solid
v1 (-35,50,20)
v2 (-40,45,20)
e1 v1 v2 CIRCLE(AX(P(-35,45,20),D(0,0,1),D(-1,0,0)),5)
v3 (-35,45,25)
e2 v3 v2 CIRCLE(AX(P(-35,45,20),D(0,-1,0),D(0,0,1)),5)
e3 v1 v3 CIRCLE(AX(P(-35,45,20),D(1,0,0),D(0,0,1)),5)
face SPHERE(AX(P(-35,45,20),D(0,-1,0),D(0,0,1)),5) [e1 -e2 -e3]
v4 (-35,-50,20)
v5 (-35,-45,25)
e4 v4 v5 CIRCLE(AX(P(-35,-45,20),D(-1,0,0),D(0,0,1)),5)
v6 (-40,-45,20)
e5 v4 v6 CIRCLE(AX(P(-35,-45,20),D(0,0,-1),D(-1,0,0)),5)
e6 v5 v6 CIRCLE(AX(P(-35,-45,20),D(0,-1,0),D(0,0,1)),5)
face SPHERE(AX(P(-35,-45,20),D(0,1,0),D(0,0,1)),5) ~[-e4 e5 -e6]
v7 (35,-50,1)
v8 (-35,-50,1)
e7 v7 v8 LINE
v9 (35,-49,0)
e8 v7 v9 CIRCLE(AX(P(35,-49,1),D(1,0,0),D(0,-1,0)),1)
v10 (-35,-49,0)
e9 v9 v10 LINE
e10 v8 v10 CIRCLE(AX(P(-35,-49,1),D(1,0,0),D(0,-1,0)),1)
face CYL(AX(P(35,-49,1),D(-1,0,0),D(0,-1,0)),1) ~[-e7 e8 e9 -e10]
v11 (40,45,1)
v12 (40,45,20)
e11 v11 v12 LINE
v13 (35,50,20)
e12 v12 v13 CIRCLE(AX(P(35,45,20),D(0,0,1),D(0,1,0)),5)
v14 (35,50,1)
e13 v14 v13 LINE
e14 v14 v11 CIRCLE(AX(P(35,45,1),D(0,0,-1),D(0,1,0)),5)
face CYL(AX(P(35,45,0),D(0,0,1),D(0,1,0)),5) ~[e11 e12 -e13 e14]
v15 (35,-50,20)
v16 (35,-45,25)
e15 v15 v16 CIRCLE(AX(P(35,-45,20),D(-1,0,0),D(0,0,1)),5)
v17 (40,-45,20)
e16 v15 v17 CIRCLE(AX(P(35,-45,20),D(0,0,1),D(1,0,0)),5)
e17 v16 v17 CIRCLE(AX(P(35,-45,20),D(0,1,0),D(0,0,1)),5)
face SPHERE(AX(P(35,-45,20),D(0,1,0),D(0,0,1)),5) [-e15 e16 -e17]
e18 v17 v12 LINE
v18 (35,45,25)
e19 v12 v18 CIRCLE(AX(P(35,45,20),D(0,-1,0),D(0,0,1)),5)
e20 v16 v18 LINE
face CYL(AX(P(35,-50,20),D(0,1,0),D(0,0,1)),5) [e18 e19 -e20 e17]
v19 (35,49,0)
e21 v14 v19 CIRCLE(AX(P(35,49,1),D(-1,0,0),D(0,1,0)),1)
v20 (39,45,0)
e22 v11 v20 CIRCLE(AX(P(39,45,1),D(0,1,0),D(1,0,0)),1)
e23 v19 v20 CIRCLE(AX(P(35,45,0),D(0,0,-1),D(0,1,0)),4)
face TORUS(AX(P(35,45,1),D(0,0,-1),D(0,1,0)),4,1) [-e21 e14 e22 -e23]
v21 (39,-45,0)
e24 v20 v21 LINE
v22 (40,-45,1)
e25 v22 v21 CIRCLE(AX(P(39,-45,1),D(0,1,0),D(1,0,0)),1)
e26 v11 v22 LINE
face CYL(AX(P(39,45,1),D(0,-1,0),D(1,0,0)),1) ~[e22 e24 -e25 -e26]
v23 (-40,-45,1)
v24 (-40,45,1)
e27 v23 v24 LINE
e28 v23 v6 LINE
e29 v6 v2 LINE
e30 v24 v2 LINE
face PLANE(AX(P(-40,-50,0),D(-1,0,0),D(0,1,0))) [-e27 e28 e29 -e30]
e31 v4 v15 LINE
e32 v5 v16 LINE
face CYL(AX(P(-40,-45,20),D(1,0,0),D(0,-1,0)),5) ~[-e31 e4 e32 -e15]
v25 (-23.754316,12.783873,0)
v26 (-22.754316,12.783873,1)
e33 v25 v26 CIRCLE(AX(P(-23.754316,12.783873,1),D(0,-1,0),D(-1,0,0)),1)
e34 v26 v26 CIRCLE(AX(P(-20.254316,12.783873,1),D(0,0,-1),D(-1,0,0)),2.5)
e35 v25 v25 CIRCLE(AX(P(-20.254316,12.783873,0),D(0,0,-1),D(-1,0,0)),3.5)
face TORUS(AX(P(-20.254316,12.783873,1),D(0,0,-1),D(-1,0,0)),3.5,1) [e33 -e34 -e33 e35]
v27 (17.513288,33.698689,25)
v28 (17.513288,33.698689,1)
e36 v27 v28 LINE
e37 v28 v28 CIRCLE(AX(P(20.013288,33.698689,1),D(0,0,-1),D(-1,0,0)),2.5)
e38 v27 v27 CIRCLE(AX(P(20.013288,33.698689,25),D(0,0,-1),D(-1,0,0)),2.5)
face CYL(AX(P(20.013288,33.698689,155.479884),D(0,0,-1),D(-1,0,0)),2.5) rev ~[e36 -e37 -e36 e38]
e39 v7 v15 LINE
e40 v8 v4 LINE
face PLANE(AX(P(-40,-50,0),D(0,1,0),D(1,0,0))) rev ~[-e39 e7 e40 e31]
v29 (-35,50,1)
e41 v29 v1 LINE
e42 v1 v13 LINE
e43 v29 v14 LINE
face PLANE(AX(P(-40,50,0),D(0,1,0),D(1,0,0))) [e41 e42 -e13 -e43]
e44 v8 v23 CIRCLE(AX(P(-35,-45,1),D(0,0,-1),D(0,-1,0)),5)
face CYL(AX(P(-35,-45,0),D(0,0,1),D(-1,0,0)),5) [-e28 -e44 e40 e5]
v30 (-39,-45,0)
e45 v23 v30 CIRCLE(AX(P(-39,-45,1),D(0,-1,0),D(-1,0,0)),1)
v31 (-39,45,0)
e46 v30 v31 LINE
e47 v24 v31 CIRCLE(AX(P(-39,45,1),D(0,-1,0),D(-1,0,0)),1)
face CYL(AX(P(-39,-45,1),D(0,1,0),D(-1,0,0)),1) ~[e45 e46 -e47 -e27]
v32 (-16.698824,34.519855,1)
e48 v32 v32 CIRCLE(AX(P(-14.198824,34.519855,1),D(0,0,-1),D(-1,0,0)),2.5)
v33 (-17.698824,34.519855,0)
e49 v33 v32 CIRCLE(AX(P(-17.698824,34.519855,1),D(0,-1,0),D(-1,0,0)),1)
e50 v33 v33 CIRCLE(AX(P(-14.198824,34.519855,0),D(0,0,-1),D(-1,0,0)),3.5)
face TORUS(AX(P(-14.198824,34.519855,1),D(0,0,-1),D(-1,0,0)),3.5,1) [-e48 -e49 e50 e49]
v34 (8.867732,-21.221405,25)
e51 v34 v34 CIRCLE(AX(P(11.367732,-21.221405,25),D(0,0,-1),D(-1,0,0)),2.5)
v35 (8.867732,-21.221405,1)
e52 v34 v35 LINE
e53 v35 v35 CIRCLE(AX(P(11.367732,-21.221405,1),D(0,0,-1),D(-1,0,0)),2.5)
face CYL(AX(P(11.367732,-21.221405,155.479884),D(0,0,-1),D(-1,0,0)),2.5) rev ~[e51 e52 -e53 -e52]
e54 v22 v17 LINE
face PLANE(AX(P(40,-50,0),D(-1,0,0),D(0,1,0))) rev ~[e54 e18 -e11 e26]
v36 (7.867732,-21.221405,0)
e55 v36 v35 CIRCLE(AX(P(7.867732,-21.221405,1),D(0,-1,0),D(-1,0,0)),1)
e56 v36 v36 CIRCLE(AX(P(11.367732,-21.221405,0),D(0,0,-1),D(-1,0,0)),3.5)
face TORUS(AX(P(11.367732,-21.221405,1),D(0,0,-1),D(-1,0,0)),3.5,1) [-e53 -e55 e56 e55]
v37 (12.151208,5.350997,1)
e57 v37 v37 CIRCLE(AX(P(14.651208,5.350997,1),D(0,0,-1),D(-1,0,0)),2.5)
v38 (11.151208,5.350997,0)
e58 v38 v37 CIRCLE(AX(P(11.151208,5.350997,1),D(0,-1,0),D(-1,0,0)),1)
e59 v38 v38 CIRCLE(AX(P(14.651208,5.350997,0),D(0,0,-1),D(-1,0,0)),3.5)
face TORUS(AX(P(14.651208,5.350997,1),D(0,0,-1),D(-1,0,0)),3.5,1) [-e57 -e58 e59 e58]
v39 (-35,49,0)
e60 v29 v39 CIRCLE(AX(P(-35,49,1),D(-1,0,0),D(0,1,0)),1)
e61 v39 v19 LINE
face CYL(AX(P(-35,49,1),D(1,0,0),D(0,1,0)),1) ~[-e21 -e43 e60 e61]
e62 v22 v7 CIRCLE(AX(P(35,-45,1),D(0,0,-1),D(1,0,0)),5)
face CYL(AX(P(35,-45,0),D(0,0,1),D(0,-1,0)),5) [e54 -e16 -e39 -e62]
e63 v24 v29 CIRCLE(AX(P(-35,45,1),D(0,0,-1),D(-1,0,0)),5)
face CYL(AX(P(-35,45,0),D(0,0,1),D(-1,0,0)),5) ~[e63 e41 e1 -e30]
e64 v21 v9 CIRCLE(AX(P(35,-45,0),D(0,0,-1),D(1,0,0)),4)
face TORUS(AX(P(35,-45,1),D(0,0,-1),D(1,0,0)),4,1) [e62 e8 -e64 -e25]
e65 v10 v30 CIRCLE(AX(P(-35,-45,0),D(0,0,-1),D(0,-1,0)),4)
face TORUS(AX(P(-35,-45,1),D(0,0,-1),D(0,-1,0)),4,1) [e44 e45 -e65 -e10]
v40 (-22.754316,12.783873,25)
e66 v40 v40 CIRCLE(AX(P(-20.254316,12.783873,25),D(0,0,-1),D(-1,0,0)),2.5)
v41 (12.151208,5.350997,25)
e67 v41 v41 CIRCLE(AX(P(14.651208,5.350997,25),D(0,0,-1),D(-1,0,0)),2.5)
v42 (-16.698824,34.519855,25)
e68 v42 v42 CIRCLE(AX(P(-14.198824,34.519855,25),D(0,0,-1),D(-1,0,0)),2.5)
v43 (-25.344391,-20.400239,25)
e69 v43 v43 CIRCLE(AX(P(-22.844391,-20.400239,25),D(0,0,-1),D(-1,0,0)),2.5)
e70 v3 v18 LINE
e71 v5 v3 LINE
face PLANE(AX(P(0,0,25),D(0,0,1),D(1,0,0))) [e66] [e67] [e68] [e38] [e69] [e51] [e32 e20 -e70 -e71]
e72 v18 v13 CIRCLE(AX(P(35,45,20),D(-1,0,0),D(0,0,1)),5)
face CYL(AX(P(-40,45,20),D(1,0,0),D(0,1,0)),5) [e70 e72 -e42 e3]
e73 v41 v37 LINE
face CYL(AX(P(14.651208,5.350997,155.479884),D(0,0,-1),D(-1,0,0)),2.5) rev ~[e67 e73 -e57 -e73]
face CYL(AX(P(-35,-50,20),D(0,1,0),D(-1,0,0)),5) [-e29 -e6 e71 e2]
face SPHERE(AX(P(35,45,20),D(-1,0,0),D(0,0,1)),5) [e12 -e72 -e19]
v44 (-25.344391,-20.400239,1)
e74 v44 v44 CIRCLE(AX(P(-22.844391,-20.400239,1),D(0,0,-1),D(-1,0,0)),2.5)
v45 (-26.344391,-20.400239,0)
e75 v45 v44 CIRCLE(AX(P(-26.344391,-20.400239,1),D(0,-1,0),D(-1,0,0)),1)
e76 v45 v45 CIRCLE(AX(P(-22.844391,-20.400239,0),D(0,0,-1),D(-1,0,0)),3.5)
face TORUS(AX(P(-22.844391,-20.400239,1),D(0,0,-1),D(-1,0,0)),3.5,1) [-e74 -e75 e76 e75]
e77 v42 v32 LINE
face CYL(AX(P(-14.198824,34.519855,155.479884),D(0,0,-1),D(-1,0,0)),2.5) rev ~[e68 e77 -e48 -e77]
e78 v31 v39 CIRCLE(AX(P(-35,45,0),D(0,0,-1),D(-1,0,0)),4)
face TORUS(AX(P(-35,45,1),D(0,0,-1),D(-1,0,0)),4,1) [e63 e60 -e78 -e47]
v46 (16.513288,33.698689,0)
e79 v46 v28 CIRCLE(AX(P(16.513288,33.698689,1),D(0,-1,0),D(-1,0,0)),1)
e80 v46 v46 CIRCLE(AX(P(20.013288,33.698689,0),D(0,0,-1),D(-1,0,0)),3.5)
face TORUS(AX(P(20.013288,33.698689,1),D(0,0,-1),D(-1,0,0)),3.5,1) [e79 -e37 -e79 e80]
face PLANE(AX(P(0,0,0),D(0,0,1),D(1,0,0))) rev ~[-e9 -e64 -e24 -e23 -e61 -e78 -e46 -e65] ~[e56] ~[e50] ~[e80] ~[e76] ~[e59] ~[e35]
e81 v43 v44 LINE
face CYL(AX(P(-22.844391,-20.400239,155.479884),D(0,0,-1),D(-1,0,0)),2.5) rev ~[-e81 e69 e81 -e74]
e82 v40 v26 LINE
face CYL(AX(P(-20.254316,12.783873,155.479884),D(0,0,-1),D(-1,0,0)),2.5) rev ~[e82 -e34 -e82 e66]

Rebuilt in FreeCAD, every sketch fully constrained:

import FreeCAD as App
import Part
import Sketcher

V = App.Vector


def edges_at(feature, points):
    """Names of the edges that pass closest to the given points."""
    edges = feature.Shape.Edges
    near = lambda p: min(range(len(edges)), key=lambda i: edges[i].distToShape(Part.Vertex(*p))[0])
    return sorted({f"Edge{near(p) + 1}" for p in points})


def add_polygon(sketch, points):
    """Adds a closed chain of lines whose ends are joined by coincident constraints."""
    first, n = sketch.GeometryCount, len(points)
    for a, b in zip(points, points[1:] + points[:1]):
        sketch.addGeometry(Part.LineSegment(App.Vector(*a, 0), App.Vector(*b, 0)), False)
    for i in range(n):
        sketch.addConstraint(Sketcher.Constraint("Coincident", first + i, 2, first + (i + 1) % n, 1))

doc = App.newDocument("Part")
params = doc.addObject("Spreadsheet::Sheet", "Params")
for row, (alias, value) in enumerate([
    ("sketch1_width", "80 mm"),
    ("sketch1_height", "100 mm"),
    ("pad1_length", "25 mm"),
    ("sketch2_diameter", "5 mm"),
    ("hole_diameter", "5 mm"),
    ("fillet_radius", "5 mm"),
    ("fillet2_radius", "1 mm"),
], start=1):
    params.set(f"A{row}", alias)
    params.set(f"B{row}", "=" + value)
    params.setAlias(f"B{row}", alias)

body = doc.addObject("PartDesign::Body", "Body")

# Sketch on XY plane
sketch1 = body.newObject("Sketcher::SketchObject", "Sketch")
sketch1.AttachmentSupport = (doc.getObject("XY_Plane"), [""])
sketch1.MapMode = "FlatFace"
add_polygon(sketch1, [(-40, 50), (-40, -50), (40, -50), (40, 50)])  # lines 0-3
sketch1.addConstraint([
    Sketcher.Constraint("Vertical", 0),
    Sketcher.Constraint("Horizontal", 1),
    Sketcher.Constraint("Vertical", 2),
    Sketcher.Constraint("Horizontal", 3),
    Sketcher.Constraint("Symmetric", 0, 2, 2, 2, -1, 1),
    Sketcher.Constraint("DistanceX", 1, 1, 1, 2, 80.0),
    Sketcher.Constraint("DistanceY", 0, 2, 0, 1, 100.0),
])
sketch1.setExpression("Constraints[9]", "Params.sketch1_width")
sketch1.setExpression("Constraints[10]", "Params.sketch1_height")
pad1 = body.newObject("PartDesign::Pad", "Pad")
pad1.Profile = sketch1
pad1.setExpression("Length", "Params.pad1_length")

# Sketch on XY plane
sketch2 = body.newObject("Sketcher::SketchObject", "Sketch001")
sketch2.AttachmentSupport = (doc.getObject("XY_Plane"), [""])
sketch2.MapMode = "FlatFace"
sketch2.AttachmentOffset = App.Placement(V(0, 0, 25), App.Rotation())
sketch2.addGeometry([
    Part.Circle(V(20, 33.7, 0), V(0, 0, 1), 2.5),  # 0
    Part.Circle(V(-14.2, 34.5, 0), V(0, 0, 1), 2.5),  # 1
    Part.Circle(V(-20.3, 12.8, 0), V(0, 0, 1), 2.5),  # 2
    Part.Circle(V(14.7, 5.4, 0), V(0, 0, 1), 2.5),  # 3
    Part.Circle(V(11.4, -21.2, 0), V(0, 0, 1), 2.5),  # 4
    Part.Circle(V(-22.8, -20.4, 0), V(0, 0, 1), 2.5),  # 5
], False)
sketch2.addConstraint([
    Sketcher.Constraint("Equal", 0, 1),
    Sketcher.Constraint("Equal", 1, 2),
    Sketcher.Constraint("Equal", 2, 3),
    Sketcher.Constraint("Equal", 3, 4),
    Sketcher.Constraint("Equal", 4, 5),
    Sketcher.Constraint("Diameter", 0, 5.0),
    Sketcher.Constraint("DistanceX", 5, 3, 3, 3, 37.495599),
    Sketcher.Constraint("DistanceY", -1, 1, 0, 3, 33.698689),
    Sketcher.Constraint("DistanceX", 5, 3, -1, 1, 22.844391),
    Sketcher.Constraint("DistanceY", 5, 3, -1, 1, 20.400239),
    Sketcher.Constraint("DistanceX", 1, 3, 0, 3, 34.212112),
    Sketcher.Constraint("DistanceX", 2, 3, 1, 3, 6.055492),
    Sketcher.Constraint("DistanceY", 2, 3, 1, 3, 21.735982),
    Sketcher.Constraint("DistanceX", 3, 3, 0, 3, 5.36208),
    Sketcher.Constraint("DistanceY", 3, 3, 1, 3, 29.168858),
    Sketcher.Constraint("DistanceY", 4, 3, 2, 3, 34.005278),
    Sketcher.Constraint("DistanceY", -1, 1, 1, 3, 34.519855),
    Sketcher.Constraint("DistanceX", -1, 1, 4, 3, 11.367732),
])
sketch2.setExpression("Constraints[5]", "Params.sketch2_diameter")
doc.recompute()
hole = body.newObject("PartDesign::Hole", "Hole")
hole.Profile = sketch2
hole.ThreadType = "None"
hole.setExpression("Diameter", "Params.hole_diameter")
hole.DepthType = "ThroughAll"
doc.recompute()

fillet = body.newObject("PartDesign::Fillet", "Fillet")
fillet.Base = (hole, edges_at(hole, [
    (-40, 0, 25),
    (0, 50, 25),
    (40, 0, 25),
    (0, -50, 25),
    (-40, 50, 12.5),
    (-40, -50, 12.5),
    (40, -50, 12.5),
    (40, 50, 12.5),
]))
fillet.setExpression("Radius", "Params.fillet_radius")
doc.recompute()

fillet2 = body.newObject("PartDesign::Fillet", "Fillet001")
fillet2.Base = (fillet, edges_at(fillet, [
    (-40, 0, 0),
    (-38.536, 48.536, 0),
    (-38.536, -48.536, 0),
    (0, 50, 0),
    (0, -50, 0),
    (38.536, 48.536, 0),
    (38.536, -48.536, 0),
    (40, 0, 0),
    (-20.344, -20.4, 0),
    (13.868, -21.221, 0),
    (17.151, 5.351, 0),
    (-17.754, 12.784, 0),
    (-11.699, 34.52, 0),
    (22.513, 33.699, 0),
]))
fillet2.setExpression("Radius", "Params.fillet2_radius")

doc.recompute()
